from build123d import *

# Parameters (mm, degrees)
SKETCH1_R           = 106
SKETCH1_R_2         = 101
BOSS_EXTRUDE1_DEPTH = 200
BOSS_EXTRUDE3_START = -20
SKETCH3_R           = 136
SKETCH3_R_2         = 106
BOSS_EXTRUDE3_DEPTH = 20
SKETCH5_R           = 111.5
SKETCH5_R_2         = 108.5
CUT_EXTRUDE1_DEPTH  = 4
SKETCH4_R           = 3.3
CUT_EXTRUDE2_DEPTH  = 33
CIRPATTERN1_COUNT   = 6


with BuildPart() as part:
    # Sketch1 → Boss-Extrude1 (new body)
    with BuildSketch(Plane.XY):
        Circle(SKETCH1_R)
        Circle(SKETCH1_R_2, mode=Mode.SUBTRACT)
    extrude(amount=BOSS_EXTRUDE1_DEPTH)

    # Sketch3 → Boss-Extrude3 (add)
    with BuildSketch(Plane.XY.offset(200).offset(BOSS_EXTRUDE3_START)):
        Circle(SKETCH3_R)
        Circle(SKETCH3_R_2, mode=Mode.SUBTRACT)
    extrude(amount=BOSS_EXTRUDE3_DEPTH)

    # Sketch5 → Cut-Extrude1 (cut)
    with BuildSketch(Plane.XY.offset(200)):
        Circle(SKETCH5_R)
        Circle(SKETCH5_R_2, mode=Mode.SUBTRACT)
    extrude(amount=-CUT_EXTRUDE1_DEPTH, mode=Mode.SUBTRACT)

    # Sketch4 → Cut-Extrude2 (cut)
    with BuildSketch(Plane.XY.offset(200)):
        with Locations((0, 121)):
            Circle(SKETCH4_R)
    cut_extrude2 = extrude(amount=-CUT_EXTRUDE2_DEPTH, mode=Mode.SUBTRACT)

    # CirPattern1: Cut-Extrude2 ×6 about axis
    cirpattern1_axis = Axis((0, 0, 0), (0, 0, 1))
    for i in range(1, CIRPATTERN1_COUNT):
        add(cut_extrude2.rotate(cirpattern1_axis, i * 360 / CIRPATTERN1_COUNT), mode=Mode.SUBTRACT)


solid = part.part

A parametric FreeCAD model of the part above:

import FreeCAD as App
import Part
import Sketcher
from FreeCAD import Vector
Q = App.Units.Quantity

doc = App.newDocument("Part")
body = doc.addObject("PartDesign::Body", "Body")

sketch1 = body.newObject("Sketcher::SketchObject", "Sketch")
sketch1.AttachmentSupport = (doc.getObject("XY_Plane"), [""])
sketch1.MapMode = "FlatFace"
sketch1.addGeometry([
    Part.Circle(Vector(0, 0, 0), Vector(0, 0, 1), 106),
    Part.Circle(Vector(0, 0, 0), Vector(0, 0, 1), 101),
], False)
sketch1.addConstraint([
    Sketcher.Constraint("Coincident", 0, 3, -1, 1),
    Sketcher.Constraint("Coincident", 1, 3, -1, 1),
    Sketcher.Constraint("Diameter", 0, Q("212 mm")),
    Sketcher.Constraint("Diameter", 1, Q("202 mm")),
])
pad1 = body.newObject("PartDesign::Pad", "Pad")
pad1.Profile = sketch1
pad1.Length = 200

sketch2 = body.newObject("Sketcher::SketchObject", "Sketch001")
sketch2.AttachmentSupport = (doc.getObject("XY_Plane"), [""])
sketch2.MapMode = "FlatFace"
sketch2.AttachmentOffset = App.Placement(Vector(0, 0, 180), App.Rotation())
sketch2.addGeometry([
    Part.Circle(Vector(0, 0, 0), Vector(0, 0, 1), 136),
    Part.Circle(Vector(0, 0, 0), Vector(0, 0, 1), 106),
], False)
sketch2.addConstraint([
    Sketcher.Constraint("Coincident", 0, 3, -1, 1),
    Sketcher.Constraint("Coincident", 1, 3, -1, 1),
    Sketcher.Constraint("Diameter", 0, Q("272 mm")),
    Sketcher.Constraint("Diameter", 1, Q("212 mm")),
])
pad2 = body.newObject("PartDesign::Pad", "Pad001")
pad2.Profile = sketch2
pad2.Length = 20

sketch3 = body.newObject("Sketcher::SketchObject", "Sketch002")
sketch3.AttachmentSupport = (doc.getObject("XY_Plane"), [""])
sketch3.MapMode = "FlatFace"
sketch3.AttachmentOffset = App.Placement(Vector(0, 0, 200), App.Rotation())
sketch3.addGeometry([
    Part.Circle(Vector(0, 0, 0), Vector(0, 0, 1), 111.5),
    Part.Circle(Vector(0, 0, 0), Vector(0, 0, 1), 108.5),
], False)
sketch3.addConstraint([
    Sketcher.Constraint("Coincident", 0, 3, -1, 1),
    Sketcher.Constraint("Coincident", 1, 3, -1, 1),
    Sketcher.Constraint("Diameter", 0, Q("223 mm")),
    Sketcher.Constraint("Diameter", 1, Q("217 mm")),
])
pocket1 = body.newObject("PartDesign::Pocket", "Pocket")
pocket1.Profile = sketch3
pocket1.Length = 4

sketch4 = body.newObject("Sketcher::SketchObject", "Sketch003")
sketch4.AttachmentSupport = (doc.getObject("XY_Plane"), [""])
sketch4.MapMode = "FlatFace"
sketch4.AttachmentOffset = App.Placement(Vector(0, 0, 200), App.Rotation())
sketch4.addGeometry(Part.Circle(Vector(0, 121, 0), Vector(0, 0, 1), 3.3), False)
sketch4.addConstraint([
    Sketcher.Constraint("PointOnObject", 0, 3, -2),
    Sketcher.Constraint("Diameter", 0, Q("6.6 mm")),
    Sketcher.Constraint("DistanceY", -1, 1, 0, 3, Q("121 mm")),
])
pocket2 = body.newObject("PartDesign::Pocket", "Pocket001")
pocket2.Profile = sketch4
pocket2.Length = 33
doc.recompute()

polarpattern = body.newObject("PartDesign::PolarPattern", "PolarPattern")
polarpattern.Originals = [pocket2]
polarpattern.Axis = (doc.getObject("Z_Axis"), [""])
polarpattern.Angle = 360
polarpattern.Occurrences = 6
body.Tip = polarpattern

doc.recompute()
